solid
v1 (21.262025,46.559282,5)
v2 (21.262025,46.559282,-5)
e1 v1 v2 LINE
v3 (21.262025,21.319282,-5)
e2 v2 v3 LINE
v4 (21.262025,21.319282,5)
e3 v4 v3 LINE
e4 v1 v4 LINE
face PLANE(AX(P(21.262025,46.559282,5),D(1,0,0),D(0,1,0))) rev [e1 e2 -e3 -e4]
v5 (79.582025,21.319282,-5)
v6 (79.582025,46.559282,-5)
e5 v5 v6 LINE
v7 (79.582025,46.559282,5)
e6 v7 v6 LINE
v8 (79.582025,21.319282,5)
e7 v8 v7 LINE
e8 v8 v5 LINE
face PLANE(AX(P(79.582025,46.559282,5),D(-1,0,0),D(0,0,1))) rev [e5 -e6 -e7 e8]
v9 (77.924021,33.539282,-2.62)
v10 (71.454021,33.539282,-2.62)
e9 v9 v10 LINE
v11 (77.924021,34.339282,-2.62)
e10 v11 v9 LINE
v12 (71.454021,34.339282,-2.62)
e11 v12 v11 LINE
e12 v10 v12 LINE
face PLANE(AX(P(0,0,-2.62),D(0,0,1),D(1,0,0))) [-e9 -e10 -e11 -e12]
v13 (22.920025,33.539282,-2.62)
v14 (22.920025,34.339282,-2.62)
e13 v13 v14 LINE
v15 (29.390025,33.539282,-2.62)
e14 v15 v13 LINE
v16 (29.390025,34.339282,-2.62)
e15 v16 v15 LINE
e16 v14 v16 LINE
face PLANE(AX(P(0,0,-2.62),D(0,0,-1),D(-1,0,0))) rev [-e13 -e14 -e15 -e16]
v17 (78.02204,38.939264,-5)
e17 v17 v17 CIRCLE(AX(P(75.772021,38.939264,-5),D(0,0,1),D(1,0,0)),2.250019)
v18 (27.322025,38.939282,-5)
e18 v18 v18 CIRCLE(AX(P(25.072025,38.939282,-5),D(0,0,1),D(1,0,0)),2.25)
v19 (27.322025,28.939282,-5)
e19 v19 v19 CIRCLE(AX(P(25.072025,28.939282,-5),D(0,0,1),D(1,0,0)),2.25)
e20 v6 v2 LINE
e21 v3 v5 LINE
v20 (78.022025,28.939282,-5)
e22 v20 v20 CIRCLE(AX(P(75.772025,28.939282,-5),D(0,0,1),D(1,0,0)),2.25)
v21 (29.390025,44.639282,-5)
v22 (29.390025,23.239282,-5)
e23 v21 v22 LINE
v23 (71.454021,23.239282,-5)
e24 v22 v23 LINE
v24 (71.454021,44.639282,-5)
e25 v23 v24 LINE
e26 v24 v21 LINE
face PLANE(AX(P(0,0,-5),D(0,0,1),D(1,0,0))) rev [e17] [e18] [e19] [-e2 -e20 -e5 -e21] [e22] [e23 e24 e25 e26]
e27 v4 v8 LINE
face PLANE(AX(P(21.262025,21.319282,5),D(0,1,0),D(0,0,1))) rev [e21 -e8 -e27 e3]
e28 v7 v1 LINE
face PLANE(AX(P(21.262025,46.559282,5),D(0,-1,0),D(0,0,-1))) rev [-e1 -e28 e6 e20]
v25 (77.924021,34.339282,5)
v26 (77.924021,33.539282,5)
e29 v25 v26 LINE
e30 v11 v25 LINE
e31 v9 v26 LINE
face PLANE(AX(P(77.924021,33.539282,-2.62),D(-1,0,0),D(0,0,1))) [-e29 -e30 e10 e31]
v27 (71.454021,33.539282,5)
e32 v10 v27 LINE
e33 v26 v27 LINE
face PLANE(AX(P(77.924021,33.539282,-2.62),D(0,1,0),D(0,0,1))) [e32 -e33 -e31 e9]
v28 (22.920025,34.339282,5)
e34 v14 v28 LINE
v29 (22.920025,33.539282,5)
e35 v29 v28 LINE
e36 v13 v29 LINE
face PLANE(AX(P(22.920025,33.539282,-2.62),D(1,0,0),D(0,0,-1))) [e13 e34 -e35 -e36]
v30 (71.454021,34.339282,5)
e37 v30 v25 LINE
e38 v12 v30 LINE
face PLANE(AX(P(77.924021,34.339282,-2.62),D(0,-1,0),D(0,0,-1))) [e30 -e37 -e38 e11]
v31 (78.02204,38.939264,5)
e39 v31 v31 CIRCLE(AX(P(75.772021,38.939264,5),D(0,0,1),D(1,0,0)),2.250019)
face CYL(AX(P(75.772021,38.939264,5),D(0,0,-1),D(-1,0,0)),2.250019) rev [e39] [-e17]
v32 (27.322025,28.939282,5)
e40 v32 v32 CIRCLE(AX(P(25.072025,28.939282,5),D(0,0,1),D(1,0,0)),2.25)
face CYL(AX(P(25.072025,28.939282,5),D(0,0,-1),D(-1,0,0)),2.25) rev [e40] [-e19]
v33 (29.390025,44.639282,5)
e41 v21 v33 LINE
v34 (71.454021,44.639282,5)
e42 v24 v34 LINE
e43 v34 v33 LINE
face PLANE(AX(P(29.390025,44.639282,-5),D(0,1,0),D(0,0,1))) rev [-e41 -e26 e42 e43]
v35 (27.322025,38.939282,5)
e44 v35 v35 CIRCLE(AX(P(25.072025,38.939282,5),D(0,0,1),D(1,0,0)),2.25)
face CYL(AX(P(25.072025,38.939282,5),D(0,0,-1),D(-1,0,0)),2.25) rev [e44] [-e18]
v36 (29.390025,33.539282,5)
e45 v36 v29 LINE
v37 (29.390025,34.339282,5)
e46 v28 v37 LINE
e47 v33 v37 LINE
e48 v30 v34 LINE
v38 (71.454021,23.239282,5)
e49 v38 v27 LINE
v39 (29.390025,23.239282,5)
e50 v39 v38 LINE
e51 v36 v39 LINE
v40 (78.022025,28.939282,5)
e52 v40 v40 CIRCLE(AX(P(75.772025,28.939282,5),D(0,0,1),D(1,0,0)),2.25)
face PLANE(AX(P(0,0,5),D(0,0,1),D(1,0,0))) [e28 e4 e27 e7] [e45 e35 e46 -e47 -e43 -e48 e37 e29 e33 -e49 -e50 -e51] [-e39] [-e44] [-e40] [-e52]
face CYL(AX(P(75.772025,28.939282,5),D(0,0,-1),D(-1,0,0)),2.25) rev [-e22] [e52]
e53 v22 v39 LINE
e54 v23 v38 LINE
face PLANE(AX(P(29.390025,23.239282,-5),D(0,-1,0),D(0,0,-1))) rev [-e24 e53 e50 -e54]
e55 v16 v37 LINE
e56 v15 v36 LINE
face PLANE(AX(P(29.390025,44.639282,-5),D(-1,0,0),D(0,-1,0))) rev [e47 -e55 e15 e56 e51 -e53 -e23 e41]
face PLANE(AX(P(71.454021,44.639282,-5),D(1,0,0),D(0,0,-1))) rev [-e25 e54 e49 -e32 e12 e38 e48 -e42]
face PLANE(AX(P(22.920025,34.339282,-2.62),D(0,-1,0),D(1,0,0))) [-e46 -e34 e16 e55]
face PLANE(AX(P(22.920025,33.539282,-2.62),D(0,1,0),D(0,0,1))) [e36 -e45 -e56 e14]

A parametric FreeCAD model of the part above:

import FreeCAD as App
import Part
import Sketcher
Q = App.Units.Quantity

doc = App.newDocument("Part")
params = doc.addObject("Spreadsheet::Sheet", "Params")
for row, (alias, value) in enumerate([
    ("sketch1_width", "58.32 mm"),
    ("sketch1_height", "25.24 mm"),
    ("pad1_length", "10 mm"),
    ("sketch2_diameter", "4.5 mm"),
    ("sketch3_height", "21.4 mm"),
    ("sketch4_height", "0.8 mm"),
    ("sketch4_width", "6.47 mm"),
    ("pocket3_length", "7.62 mm"),
], start=1):
    params.set(f"A{row}", alias)
    params.set(f"B{row}", "=" + value)
    params.setAlias(f"B{row}", alias)

body = doc.addObject("PartDesign::Body", "Body")

# Sketch on XY plane
sketch1 = body.newObject("Sketcher::SketchObject", "Sketch")
sketch1.AttachmentSupport = (doc.getObject("XY_Plane"), [""])
sketch1.MapMode = "FlatFace"
sketch1.addGeometry(Part.LineSegment(App.Vector(21, 47, 0), App.Vector(21, 21, 0)), False)
sketch1.addGeometry(Part.LineSegment(App.Vector(21, 21, 0), App.Vector(80, 21, 0)), False)
sketch1.addGeometry(Part.LineSegment(App.Vector(80, 21, 0), App.Vector(80, 47, 0)), False)
sketch1.addGeometry(Part.LineSegment(App.Vector(80, 47, 0), App.Vector(21, 47, 0)), False)
sketch1.addConstraint(Sketcher.Constraint("Coincident", 0, 2, 1, 1))
sketch1.addConstraint(Sketcher.Constraint("Coincident", 1, 2, 2, 1))
sketch1.addConstraint(Sketcher.Constraint("Coincident", 2, 2, 3, 1))
sketch1.addConstraint(Sketcher.Constraint("Coincident", 3, 2, 0, 1))
sketch1.addConstraint(Sketcher.Constraint("Vertical", 0))
sketch1.addConstraint(Sketcher.Constraint("Horizontal", 1))
sketch1.addConstraint(Sketcher.Constraint("Vertical", 2))
sketch1.addConstraint(Sketcher.Constraint("Horizontal", 3))
sketch1.addConstraint(Sketcher.Constraint("DistanceX", 1, 1, 1, 2, Q("58.32 mm")))
sketch1.addConstraint(Sketcher.Constraint("DistanceY", 0, 2, 0, 1, Q("25.24 mm")))
sketch1.addConstraint(Sketcher.Constraint("DistanceX", -1, 1, 0, 2, Q("21.262025 mm")))
sketch1.addConstraint(Sketcher.Constraint("DistanceY", -1, 1, 0, 2, Q("21.319282 mm")))
sketch1.setExpression("Constraints[8]", "Params.sketch1_width")
sketch1.setExpression("Constraints[9]", "Params.sketch1_height")
pad1 = body.newObject("PartDesign::Pad", "Pad")
pad1.Profile = sketch1
pad1.setExpression("Length", "Params.pad1_length")
pad1.Midplane = True

# Sketch on XY plane
sketch2 = body.newObject("Sketcher::SketchObject", "Sketch001")
sketch2.AttachmentSupport = (doc.getObject("XY_Plane"), [""])
sketch2.MapMode = "FlatFace"
sketch2.addGeometry(Part.Circle(App.Vector(25.1, 28.9, 0), App.Vector(0, 0, 1), 2.2), False)
sketch2.addGeometry(Part.Circle(App.Vector(25.1, 38.9, 0), App.Vector(0, 0, 1), 2.3), False)
sketch2.addGeometry(Part.Circle(App.Vector(75.8, 38.9, 0), App.Vector(0, 0, 1), 2.3), False)
sketch2.addGeometry(Part.Circle(App.Vector(75.8, 28.9, 0), App.Vector(0, 0, 1), 2.2), False)
sketch2.addConstraint(Sketcher.Constraint("Equal", 0, 1))
sketch2.addConstraint(Sketcher.Constraint("Equal", 1, 3))
sketch2.addConstraint(Sketcher.Constraint("Horizontal", 0, 3, 3, 3))
sketch2.addConstraint(Sketcher.Constraint("Vertical", 0, 3, 1, 3))
sketch2.addConstraint(Sketcher.Constraint("Diameter", 0, Q("4.5 mm")))
sketch2.addConstraint(Sketcher.Constraint("DistanceY", 0, 3, 1, 3, Q("10 mm")))
sketch2.addConstraint(Sketcher.Constraint("DistanceX", 0, 3, 3, 3, Q("50.7 mm")))
sketch2.addConstraint(Sketcher.Constraint("Diameter", 2, Q("4.500037 mm")))
sketch2.addConstraint(Sketcher.Constraint("DistanceX", -1, 1, 2, 3, Q("75.772021 mm")))
sketch2.addConstraint(Sketcher.Constraint("DistanceY", 0, 3, 2, 3, Q("9.999982 mm")))
sketch2.addConstraint(Sketcher.Constraint("DistanceX", -1, 1, 0, 3, Q("25.072025 mm")))
sketch2.addConstraint(Sketcher.Constraint("DistanceY", -1, 1, 0, 3, Q("28.939282 mm")))
sketch2.setExpression("Constraints[4]", "Params.sketch2_diameter")
pocket1 = body.newObject("PartDesign::Pocket", "Pocket")
pocket1.Profile = sketch2
pocket1.Type = "ThroughAll"
pocket1.Midplane = True

# Sketch on XY plane
sketch3 = body.newObject("Sketcher::SketchObject", "Sketch002")
sketch3.AttachmentSupport = (doc.getObject("XY_Plane"), [""])
sketch3.MapMode = "FlatFace"
sketch3.AttachmentOffset = App.Placement(App.Vector(0, 0, 5), App.Rotation())
sketch3.addGeometry(Part.LineSegment(App.Vector(29, 45, 0), App.Vector(29, 23, 0)), False)
sketch3.addGeometry(Part.LineSegment(App.Vector(29, 23, 0), App.Vector(71, 23, 0)), False)
sketch3.addGeometry(Part.LineSegment(App.Vector(71, 23, 0), App.Vector(71, 45, 0)), False)
sketch3.addGeometry(Part.LineSegment(App.Vector(71, 45, 0), App.Vector(29, 45, 0)), False)
sketch3.addConstraint(Sketcher.Constraint("Coincident", 0, 2, 1, 1))
sketch3.addConstraint(Sketcher.Constraint("Coincident", 1, 2, 2, 1))
sketch3.addConstraint(Sketcher.Constraint("Coincident", 2, 2, 3, 1))
sketch3.addConstraint(Sketcher.Constraint("Coincident", 3, 2, 0, 1))
sketch3.addConstraint(Sketcher.Constraint("Vertical", 0))
sketch3.addConstraint(Sketcher.Constraint("Horizontal", 1))
sketch3.addConstraint(Sketcher.Constraint("Vertical", 2))
sketch3.addConstraint(Sketcher.Constraint("Horizontal", 3))
sketch3.addConstraint(Sketcher.Constraint("DistanceY", 0, 2, 0, 1, Q("21.4 mm")))
sketch3.addConstraint(Sketcher.Constraint("DistanceX", 1, 1, 1, 2, Q("42.063996 mm")))
sketch3.addConstraint(Sketcher.Constraint("DistanceX", -1, 1, 1, 2, Q("71.454021 mm")))
sketch3.addConstraint(Sketcher.Constraint("DistanceY", -1, 1, 0, 2, Q("23.239282 mm")))
sketch3.setExpression("Constraints[8]", "Params.sketch3_height")
pocket2 = body.newObject("PartDesign::Pocket", "Pocket001")
pocket2.Profile = sketch3
pocket2.Type = "ThroughAll"
pocket2.Midplane = True

# Sketch on XY plane
sketch4 = body.newObject("Sketcher::SketchObject", "Sketch003")
sketch4.AttachmentSupport = (doc.getObject("XY_Plane"), [""])
sketch4.MapMode = "FlatFace"
sketch4.AttachmentOffset = App.Placement(App.Vector(0, 0, 5), App.Rotation())
sketch4.addGeometry(Part.LineSegment(App.Vector(77.9, 34.3, 0), App.Vector(77.9, 33.5, 0)), False)
sketch4.addGeometry(Part.LineSegment(App.Vector(77.9, 33.5, 0), App.Vector(71.5, 33.5, 0)), False)
sketch4.addGeometry(Part.LineSegment(App.Vector(71.5, 33.5, 0), App.Vector(71.5, 34.3, 0)), False)
sketch4.addGeometry(Part.LineSegment(App.Vector(71.5, 34.3, 0), App.Vector(77.9, 34.3, 0)), False)
sketch4.addGeometry(Part.LineSegment(App.Vector(29.4, 34.3, 0), App.Vector(29.4, 33.5, 0)), False)
sketch4.addGeometry(Part.LineSegment(App.Vector(29.4, 33.5, 0), App.Vector(22.9, 33.5, 0)), False)
sketch4.addGeometry(Part.LineSegment(App.Vector(22.9, 33.5, 0), App.Vector(22.9, 34.3, 0)), False)
sketch4.addGeometry(Part.LineSegment(App.Vector(22.9, 34.3, 0), App.Vector(29.4, 34.3, 0)), False)
sketch4.addConstraint(Sketcher.Constraint("Coincident", 0, 2, 1, 1))
sketch4.addConstraint(Sketcher.Constraint("Coincident", 1, 2, 2, 1))
sketch4.addConstraint(Sketcher.Constraint("Coincident", 2, 2, 3, 1))
sketch4.addConstraint(Sketcher.Constraint("Coincident", 3, 2, 0, 1))
sketch4.addConstraint(Sketcher.Constraint("Coincident", 4, 2, 5, 1))
sketch4.addConstraint(Sketcher.Constraint("Coincident", 5, 2, 6, 1))
sketch4.addConstraint(Sketcher.Constraint("Coincident", 6, 2, 7, 1))
sketch4.addConstraint(Sketcher.Constraint("Coincident", 7, 2, 4, 1))
sketch4.addConstraint(Sketcher.Constraint("Vertical", 0))
sketch4.addConstraint(Sketcher.Constraint("Horizontal", 1))
sketch4.addConstraint(Sketcher.Constraint("Vertical", 2))
sketch4.addConstraint(Sketcher.Constraint("Horizontal", 3))
sketch4.addConstraint(Sketcher.Constraint("Vertical", 4))
sketch4.addConstraint(Sketcher.Constraint("Horizontal", 5))
sketch4.addConstraint(Sketcher.Constraint("Vertical", 6))
sketch4.addConstraint(Sketcher.Constraint("Horizontal", 7))
sketch4.addConstraint(Sketcher.Constraint("Horizontal", 1, 2, 4, 2))
sketch4.addConstraint(Sketcher.Constraint("Horizontal", 3, 2, 6, 2))
sketch4.addConstraint(Sketcher.Constraint("Equal", 3, 5))
sketch4.addConstraint(Sketcher.Constraint("DistanceY", 0, 2, 0, 1, Q("0.8 mm")))
sketch4.addConstraint(Sketcher.Constraint("DistanceX", 1, 2, 1, 1, Q("6.47 mm")))
sketch4.addConstraint(Sketcher.Constraint("DistanceX", -1, 1, 0, 2, Q("77.924021 mm")))
sketch4.addConstraint(Sketcher.Constraint("DistanceY", -1, 1, 0, 2, Q("33.539282 mm")))
sketch4.addConstraint(Sketcher.Constraint("DistanceX", -1, 1, 4, 2, Q("29.390025 mm")))
sketch4.setExpression("Constraints[19]", "Params.sketch4_height")
sketch4.setExpression("Constraints[20]", "Params.sketch4_width")
pocket3 = body.newObject("PartDesign::Pocket", "Pocket002")
pocket3.Profile = sketch4
pocket3.setExpression("Length", "Params.pocket3_length")

doc.recompute()
